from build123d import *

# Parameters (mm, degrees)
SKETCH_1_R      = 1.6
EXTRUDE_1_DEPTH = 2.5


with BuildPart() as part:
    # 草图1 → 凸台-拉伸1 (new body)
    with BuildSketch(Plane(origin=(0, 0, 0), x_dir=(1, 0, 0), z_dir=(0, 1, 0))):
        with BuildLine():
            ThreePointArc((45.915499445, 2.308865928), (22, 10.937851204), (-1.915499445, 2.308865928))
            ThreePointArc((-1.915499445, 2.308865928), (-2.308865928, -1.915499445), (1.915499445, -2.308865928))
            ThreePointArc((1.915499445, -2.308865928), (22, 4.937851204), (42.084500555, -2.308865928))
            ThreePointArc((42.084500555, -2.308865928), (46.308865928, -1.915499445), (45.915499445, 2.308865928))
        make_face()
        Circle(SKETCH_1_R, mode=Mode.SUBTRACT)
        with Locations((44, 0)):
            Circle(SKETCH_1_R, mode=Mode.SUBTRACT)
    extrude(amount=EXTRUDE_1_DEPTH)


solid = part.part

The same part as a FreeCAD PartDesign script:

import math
import FreeCAD as App
import Part
import Sketcher

V = App.Vector
Q = App.Units.Quantity

doc = App.newDocument("Part")
params = doc.addObject("Spreadsheet::Sheet", "Params")
for row, (alias, value) in enumerate([
    ("sketch1_radius", "3 mm"),
    ("sketch1_diameter", "3.2 mm"),
    ("pad1_length", "2.5 mm"),
], start=1):
    params.set(f"A{row}", alias)
    params.set(f"B{row}", "=" + value)
    params.setAlias(f"B{row}", alias)

body = doc.addObject("PartDesign::Body", "Body")

# Sketch on XZ plane
sketch1 = body.newObject("Sketcher::SketchObject", "Sketch")
sketch1.AttachmentSupport = (doc.getObject("XZ_Plane"), [""])
sketch1.MapMode = "FlatFace"
sketch1.addGeometry([
    Part.ArcOfCircle(Part.Circle(V(22, 26.5, 0), V(0, 0, 1), 37.5), math.radians(-130), math.radians(-50)),  # 0
    Part.ArcOfCircle(Part.Circle(V(0, 0, 0), V(0, 0, 1), 3), math.radians(50), math.radians(230)),  # 1
    Part.ArcOfCircle(Part.Circle(V(22, 26.5, 0), V(0, 0, 1), 31.5), math.radians(-130), math.radians(-50)),  # 2
    Part.ArcOfCircle(Part.Circle(V(44, 0, 0), V(0, 0, 1), 3), math.radians(-50), math.radians(130)),  # 3
    Part.Circle(V(0, 0, 0), V(0, 0, 1), 1.6),  # 4
    Part.Circle(V(44, 0, 0), V(0, 0, 1), 1.6),  # 5
], False)
sketch1.addConstraint([
    Sketcher.Constraint("Tangent", 0, 1, 1, 2),
    Sketcher.Constraint("Tangent", 1, 1, 2, 1),
    Sketcher.Constraint("Tangent", 2, 2, 3, 2),
    Sketcher.Constraint("Tangent", 3, 1, 0, 2),
    Sketcher.Constraint("Coincident", 1, 3, -1, 1),
    Sketcher.Constraint("Coincident", 4, 3, -1, 1),
    Sketcher.Constraint("Coincident", 2, 3, 0, 3),
    Sketcher.Constraint("Coincident", 5, 3, 3, 3),
    Sketcher.Constraint("Equal", 4, 5),
    Sketcher.Constraint("PointOnObject", 3, 3, -1),
    Sketcher.Constraint("Radius", 1, Q("3 mm")),
    Sketcher.Constraint("Diameter", 4, Q("3.2 mm")),
    Sketcher.Constraint("DistanceX", -1, 1, 0, 3, Q("22 mm")),
    Sketcher.Constraint("Radius", 0, Q("37.455766 mm")),
])
sketch1.setExpression("Constraints[10]", "Params.sketch1_radius")
sketch1.setExpression("Constraints[11]", "Params.sketch1_diameter")
pad1 = body.newObject("PartDesign::Pad", "Pad")
pad1.Profile = sketch1
pad1.setExpression("Length", "Params.pad1_length")
pad1.Reversed = True

doc.recompute()
